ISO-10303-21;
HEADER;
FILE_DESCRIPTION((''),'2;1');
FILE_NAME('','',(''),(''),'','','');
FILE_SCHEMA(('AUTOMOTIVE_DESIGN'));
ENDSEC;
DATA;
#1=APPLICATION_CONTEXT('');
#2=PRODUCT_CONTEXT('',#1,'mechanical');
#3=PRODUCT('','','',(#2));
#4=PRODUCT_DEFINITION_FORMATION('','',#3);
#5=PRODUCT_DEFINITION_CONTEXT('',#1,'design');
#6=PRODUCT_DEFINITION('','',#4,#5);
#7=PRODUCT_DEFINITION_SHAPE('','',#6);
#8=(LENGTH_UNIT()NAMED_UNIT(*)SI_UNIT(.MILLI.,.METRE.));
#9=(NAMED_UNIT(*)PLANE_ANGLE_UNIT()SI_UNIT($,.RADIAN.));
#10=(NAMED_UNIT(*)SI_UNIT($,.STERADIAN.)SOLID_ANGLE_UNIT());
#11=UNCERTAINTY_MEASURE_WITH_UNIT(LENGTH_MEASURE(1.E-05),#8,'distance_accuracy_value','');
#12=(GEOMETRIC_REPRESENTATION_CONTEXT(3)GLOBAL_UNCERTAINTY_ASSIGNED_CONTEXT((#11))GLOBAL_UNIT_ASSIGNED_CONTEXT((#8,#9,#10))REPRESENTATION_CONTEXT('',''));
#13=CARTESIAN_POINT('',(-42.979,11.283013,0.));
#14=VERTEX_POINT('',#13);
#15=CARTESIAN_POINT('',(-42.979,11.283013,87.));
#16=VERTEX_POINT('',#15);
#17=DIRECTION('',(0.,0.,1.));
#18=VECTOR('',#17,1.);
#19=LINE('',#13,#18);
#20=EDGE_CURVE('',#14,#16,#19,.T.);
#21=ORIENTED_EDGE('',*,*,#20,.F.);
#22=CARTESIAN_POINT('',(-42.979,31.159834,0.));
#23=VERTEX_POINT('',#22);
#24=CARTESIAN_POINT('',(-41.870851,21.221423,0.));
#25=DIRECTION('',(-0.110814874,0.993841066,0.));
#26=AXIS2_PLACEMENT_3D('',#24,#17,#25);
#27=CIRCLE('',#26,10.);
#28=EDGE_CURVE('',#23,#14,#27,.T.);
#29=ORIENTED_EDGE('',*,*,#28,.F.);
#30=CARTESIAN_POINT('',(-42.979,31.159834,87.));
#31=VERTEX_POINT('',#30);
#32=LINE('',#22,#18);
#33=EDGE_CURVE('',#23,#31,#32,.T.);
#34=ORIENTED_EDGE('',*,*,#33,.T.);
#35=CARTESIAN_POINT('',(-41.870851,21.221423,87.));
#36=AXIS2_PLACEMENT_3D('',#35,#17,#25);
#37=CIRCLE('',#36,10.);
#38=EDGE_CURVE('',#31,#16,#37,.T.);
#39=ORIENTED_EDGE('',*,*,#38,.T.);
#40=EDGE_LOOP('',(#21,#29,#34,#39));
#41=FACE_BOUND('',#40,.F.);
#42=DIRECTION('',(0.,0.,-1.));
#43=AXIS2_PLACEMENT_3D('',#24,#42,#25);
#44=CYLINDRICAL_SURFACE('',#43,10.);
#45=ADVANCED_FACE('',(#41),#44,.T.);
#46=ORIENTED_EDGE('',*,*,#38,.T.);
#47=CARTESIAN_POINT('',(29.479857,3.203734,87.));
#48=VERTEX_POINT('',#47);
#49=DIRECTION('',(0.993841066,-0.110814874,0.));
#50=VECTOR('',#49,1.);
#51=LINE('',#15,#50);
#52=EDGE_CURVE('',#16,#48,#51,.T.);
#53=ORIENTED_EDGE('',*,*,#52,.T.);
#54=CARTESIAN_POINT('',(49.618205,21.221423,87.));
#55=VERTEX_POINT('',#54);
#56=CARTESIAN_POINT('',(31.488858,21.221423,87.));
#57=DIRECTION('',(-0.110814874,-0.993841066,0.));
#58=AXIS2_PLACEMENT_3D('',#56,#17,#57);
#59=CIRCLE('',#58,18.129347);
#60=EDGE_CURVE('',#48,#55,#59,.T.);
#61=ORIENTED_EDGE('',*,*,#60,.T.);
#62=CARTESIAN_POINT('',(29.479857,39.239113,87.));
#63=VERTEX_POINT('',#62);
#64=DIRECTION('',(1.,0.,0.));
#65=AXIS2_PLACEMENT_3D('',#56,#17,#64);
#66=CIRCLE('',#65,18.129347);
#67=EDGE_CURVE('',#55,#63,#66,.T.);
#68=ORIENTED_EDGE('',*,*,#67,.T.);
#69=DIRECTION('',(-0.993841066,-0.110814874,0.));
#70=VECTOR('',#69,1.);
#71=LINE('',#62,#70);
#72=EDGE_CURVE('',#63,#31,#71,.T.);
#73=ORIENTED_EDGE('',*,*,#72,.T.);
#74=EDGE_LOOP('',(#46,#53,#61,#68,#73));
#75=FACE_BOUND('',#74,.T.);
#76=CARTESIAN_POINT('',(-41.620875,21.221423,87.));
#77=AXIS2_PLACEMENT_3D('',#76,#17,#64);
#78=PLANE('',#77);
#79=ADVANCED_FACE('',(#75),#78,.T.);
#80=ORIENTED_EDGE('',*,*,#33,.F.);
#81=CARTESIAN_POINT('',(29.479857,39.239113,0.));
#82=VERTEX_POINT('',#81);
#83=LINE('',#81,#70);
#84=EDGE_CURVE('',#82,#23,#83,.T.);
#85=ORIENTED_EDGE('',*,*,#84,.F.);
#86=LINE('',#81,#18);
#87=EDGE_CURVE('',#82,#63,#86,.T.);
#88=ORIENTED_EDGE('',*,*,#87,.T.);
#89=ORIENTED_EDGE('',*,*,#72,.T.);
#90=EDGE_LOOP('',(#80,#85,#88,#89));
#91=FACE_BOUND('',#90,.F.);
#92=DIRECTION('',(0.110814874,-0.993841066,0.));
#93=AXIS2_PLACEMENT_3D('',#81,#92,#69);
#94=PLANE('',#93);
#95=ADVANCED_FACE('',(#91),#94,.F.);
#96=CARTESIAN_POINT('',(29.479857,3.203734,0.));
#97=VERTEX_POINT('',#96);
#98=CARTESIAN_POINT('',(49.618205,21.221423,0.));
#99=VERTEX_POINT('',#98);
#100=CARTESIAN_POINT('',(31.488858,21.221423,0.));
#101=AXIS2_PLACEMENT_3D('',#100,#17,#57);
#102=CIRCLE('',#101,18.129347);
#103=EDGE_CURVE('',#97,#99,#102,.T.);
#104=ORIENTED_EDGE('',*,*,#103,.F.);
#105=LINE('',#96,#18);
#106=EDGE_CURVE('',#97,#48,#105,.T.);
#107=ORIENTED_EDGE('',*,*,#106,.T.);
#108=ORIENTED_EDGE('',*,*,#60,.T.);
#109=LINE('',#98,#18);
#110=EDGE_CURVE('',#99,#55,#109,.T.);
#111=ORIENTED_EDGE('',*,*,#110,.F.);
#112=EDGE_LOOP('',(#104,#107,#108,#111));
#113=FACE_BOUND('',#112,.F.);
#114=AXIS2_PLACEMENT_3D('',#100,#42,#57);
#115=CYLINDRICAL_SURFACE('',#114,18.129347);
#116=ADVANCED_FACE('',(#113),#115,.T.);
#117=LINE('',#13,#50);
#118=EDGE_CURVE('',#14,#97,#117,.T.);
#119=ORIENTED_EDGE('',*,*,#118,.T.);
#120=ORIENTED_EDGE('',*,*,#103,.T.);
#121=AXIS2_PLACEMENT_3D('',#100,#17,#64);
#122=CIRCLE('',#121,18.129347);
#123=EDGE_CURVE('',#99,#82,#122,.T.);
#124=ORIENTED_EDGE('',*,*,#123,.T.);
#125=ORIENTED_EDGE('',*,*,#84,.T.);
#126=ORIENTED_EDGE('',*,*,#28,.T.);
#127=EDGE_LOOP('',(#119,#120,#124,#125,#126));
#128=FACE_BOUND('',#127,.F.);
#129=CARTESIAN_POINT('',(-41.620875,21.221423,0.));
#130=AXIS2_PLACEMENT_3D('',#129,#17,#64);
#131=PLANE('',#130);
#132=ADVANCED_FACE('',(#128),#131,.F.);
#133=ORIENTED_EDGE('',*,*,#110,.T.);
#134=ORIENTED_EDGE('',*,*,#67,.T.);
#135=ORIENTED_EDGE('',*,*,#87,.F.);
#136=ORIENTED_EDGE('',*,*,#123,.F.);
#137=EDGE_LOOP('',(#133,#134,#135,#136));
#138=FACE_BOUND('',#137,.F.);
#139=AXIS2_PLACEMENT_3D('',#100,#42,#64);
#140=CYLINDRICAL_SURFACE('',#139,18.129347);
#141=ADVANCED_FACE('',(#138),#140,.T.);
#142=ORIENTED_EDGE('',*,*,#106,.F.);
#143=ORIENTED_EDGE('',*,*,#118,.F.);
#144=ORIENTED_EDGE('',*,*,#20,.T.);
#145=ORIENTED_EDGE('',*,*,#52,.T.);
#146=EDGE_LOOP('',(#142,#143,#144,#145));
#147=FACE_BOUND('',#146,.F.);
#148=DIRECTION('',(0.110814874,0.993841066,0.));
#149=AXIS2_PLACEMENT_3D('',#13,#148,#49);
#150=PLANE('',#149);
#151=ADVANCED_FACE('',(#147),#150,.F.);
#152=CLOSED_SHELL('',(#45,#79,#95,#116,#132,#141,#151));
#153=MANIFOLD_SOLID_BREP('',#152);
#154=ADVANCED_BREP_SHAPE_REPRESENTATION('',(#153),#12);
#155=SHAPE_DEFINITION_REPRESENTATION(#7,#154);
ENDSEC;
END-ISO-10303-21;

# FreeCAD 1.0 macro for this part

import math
import FreeCAD as App
import Part
import Sketcher

V = App.Vector
Q = App.Units.Quantity

doc = App.newDocument("Part")
body = doc.addObject("PartDesign::Body", "Body")

# Sketch on XY plane
sketch1 = doc.addObject("Sketcher::SketchObject", "Sketch")
body.addObject(sketch1)
sketch1.AttachmentSupport = (doc.XY_Plane, [""])
sketch1.MapMode = "FlatFace"
sketch1.addGeometry([
    Part.ArcOfCircle(Part.Circle(V(-42, 21, 0), V(0, 0, 1), 10), math.radians(96), math.radians(264)),  # 0
    Part.LineSegment(V(-43, 11, 0), V(29, 3, 0)),  # 1
    Part.ArcOfCircle(Part.Circle(V(31, 21, 0), V(0, 0, 1), 18), math.radians(-96), math.radians(0)),  # 2
    Part.ArcOfCircle(Part.Circle(V(31, 21, 0), V(0, 0, 1), 18), math.radians(0), math.radians(96)),  # 3
    Part.LineSegment(V(29, 39, 0), V(-43, 31, 0)),  # 4
], False)
sketch1.addConstraint([
    Sketcher.Constraint("Tangent", 0, 2, 1, 1),
    Sketcher.Constraint("Tangent", 1, 2, 2, 1),
    Sketcher.Constraint("Tangent", 2, 2, 3, 1),
    Sketcher.Constraint("Tangent", 3, 2, 4, 1),
    Sketcher.Constraint("Tangent", 4, 2, 0, 1),
    Sketcher.Constraint("Equal", 2, 3),
    Sketcher.Constraint("Horizontal", 0, 3, 2, 3),
    Sketcher.Constraint("Horizontal", 3, 3, 2, 2),
    Sketcher.Constraint("Radius", 0, Q("10 mm")),
    Sketcher.Constraint("DistanceX", 0, 2, -1, 1, Q("42.979 mm")),
    Sketcher.Constraint("Radius", 2, Q("18.129347 mm")),
    Sketcher.Constraint("DistanceX", 1, 2, 2, 3, Q("2.009001 mm")),
    Sketcher.Constraint("DistanceY", -1, 1, 0, 3, Q("21.221423 mm")),
])
pad1 = doc.addObject("PartDesign::Pad", "Pad")
body.addObject(pad1)
pad1.Profile = sketch1
pad1.Length = 87

doc.recompute()
